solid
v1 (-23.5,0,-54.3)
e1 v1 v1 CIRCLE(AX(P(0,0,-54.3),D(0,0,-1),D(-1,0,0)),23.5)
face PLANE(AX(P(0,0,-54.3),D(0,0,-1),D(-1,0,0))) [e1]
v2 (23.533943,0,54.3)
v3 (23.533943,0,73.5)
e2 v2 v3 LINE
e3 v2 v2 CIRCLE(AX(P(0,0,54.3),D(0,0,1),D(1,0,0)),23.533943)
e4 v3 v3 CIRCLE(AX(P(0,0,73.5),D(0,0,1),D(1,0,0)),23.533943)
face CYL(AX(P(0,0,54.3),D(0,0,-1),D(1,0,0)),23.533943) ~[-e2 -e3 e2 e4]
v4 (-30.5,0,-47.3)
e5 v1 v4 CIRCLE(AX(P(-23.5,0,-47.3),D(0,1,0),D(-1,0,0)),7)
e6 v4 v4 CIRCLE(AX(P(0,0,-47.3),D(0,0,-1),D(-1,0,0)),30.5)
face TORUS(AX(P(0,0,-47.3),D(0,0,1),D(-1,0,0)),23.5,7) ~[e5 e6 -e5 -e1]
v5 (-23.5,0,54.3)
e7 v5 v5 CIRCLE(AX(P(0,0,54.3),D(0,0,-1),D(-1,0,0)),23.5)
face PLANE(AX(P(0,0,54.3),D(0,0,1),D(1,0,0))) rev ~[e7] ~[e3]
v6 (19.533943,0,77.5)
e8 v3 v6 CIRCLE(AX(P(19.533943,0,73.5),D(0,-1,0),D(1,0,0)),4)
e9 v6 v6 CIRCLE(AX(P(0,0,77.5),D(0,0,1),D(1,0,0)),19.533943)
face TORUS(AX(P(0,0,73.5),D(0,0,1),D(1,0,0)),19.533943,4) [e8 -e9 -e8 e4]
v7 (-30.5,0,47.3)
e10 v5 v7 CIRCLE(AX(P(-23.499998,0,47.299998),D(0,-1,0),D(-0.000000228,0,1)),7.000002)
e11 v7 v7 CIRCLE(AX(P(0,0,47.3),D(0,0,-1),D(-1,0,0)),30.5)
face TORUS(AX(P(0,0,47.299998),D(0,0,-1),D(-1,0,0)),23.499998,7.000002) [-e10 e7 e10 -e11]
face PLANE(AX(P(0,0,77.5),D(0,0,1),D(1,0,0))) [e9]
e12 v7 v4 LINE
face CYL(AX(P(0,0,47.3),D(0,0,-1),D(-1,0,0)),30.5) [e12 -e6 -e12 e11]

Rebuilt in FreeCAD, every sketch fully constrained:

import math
import FreeCAD as App
import Part
import Sketcher


def edges_at(feature, points):
    """Names of the edges that pass closest to the given points."""
    edges = feature.Shape.Edges
    near = lambda p: min(range(len(edges)), key=lambda i: edges[i].distToShape(Part.Vertex(*p))[0])
    return sorted({f"Edge{near(p) + 1}" for p in points})

doc = App.newDocument("Part")
body = doc.addObject("PartDesign::Body", "Body")

sketch1 = doc.addObject("Sketcher::SketchObject", "Sketch")
body.addObject(sketch1)
sketch1.AttachmentSupport = (doc.XZ_Plane, [""])
sketch1.MapMode = "FlatFace"
sketch1.addGeometry([
    Part.LineSegment(App.Vector(-30.5, -54.3, 0), App.Vector(0, -54.3, 0)),
    Part.LineSegment(App.Vector(0, -54.3, 0), App.Vector(0, 54.3, 0)),
    Part.LineSegment(App.Vector(0, 54.3, 0), App.Vector(-23.5, 54.3, 0)),
    Part.ArcOfCircle(Part.Circle(App.Vector(-23.499998, 47.299998, 0), App.Vector(0, 0, 1), 7.000002), math.radians(90.000013), math.radians(179.999987)),
    Part.LineSegment(App.Vector(-30.5, 47.3, 0), App.Vector(-30.5, -54.3, 0)),
], False)
sketch1.addConstraint([
    Sketcher.Constraint("Coincident", 0, 2, 1, 1),
    Sketcher.Constraint("Coincident", 1, 2, 2, 1),
    Sketcher.Constraint("Tangent", 2, 2, 3, 1),
    Sketcher.Constraint("Tangent", 3, 2, 4, 1),
    Sketcher.Constraint("Coincident", 4, 2, 0, 1),
    Sketcher.Constraint("Horizontal", 0),
    Sketcher.Constraint("Vertical", 1),
    Sketcher.Constraint("Horizontal", 2),
    Sketcher.Constraint("Vertical", 4),
    Sketcher.Constraint("Symmetric", 0, 2, 1, 2, -1, 1),
    Sketcher.Constraint("Radius", 3, 7.000002),
    Sketcher.Constraint("DistanceX", 0, 1, 0, 2, 30.5),
    Sketcher.Constraint("DistanceY", 1, 1, 1, 2, 108.6),
])
revolution = doc.addObject("PartDesign::Revolution", "Revolution")
body.addObject(revolution)
revolution.Profile = sketch1
revolution.ReferenceAxis = (sketch1, ["V_Axis"])
revolution.Angle = 360
doc.recompute()

fillet = doc.addObject("PartDesign::Fillet", "Fillet")
body.addObject(fillet)
fillet.Base = (revolution, edges_at(revolution, [(30.5, 0, -54.3)]))
fillet.Radius = 7

sketch2 = doc.addObject("Sketcher::SketchObject", "Sketch001")
body.addObject(sketch2)
sketch2.AttachmentSupport = (doc.XY_Plane, [""])
sketch2.MapMode = "FlatFace"
sketch2.AttachmentOffset = App.Placement(App.Vector(0, 0, 54.3), App.Rotation())
sketch2.addGeometry(Part.Circle(App.Vector(0, 0, 0), App.Vector(0, 0, 1), 23.533943), False)
sketch2.addConstraint([
    Sketcher.Constraint("Coincident", 0, 3, -1, 1),
    Sketcher.Constraint("Diameter", 0, 47.067886),
])
pad1 = doc.addObject("PartDesign::Pad", "Pad")
body.addObject(pad1)
pad1.Profile = sketch2
pad1.Length = 23.2
doc.recompute()

fillet2 = doc.addObject("PartDesign::Fillet", "Fillet001")
body.addObject(fillet2)
fillet2.Base = (pad1, edges_at(pad1, [(-23.534, 0, 77.5)]))
fillet2.Radius = 4

doc.recompute()
